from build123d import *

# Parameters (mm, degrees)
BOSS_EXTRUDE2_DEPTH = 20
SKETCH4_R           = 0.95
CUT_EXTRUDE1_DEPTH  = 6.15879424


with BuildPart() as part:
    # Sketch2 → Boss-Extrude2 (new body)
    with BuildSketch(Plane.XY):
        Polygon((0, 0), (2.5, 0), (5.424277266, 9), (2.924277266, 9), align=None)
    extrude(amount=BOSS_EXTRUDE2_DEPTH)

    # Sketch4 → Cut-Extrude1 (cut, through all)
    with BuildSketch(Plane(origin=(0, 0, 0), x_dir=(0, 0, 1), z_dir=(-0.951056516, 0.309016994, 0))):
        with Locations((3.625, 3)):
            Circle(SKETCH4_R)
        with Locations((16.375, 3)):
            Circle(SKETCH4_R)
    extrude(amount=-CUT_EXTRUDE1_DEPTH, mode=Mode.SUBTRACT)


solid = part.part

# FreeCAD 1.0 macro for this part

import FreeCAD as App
import Part
import Sketcher
from FreeCAD import Vector
Q = App.Units.Quantity

doc = App.newDocument("Part")
body = doc.addObject("PartDesign::Body", "Body")

sketch1 = body.newObject("Sketcher::SketchObject", "Sketch")
sketch1.AttachmentSupport = (doc.getObject("XY_Plane"), [""])
sketch1.MapMode = "FlatFace"
sketch1.addGeometry([
    Part.LineSegment(Vector(0, 0, 0), Vector(2.5, 0, 0)),
    Part.LineSegment(Vector(2.5, 0, 0), Vector(5.4, 9, 0)),
    Part.LineSegment(Vector(5.4, 9, 0), Vector(2.9, 9, 0)),
    Part.LineSegment(Vector(2.9, 9, 0), Vector(0, 0, 0)),
], False)
sketch1.addConstraint([
    Sketcher.Constraint("Coincident", 0, 2, 1, 1),
    Sketcher.Constraint("Coincident", 1, 2, 2, 1),
    Sketcher.Constraint("Coincident", 2, 2, 3, 1),
    Sketcher.Constraint("Coincident", 3, 2, 0, 1),
    Sketcher.Constraint("Horizontal", 0),
    Sketcher.Constraint("Horizontal", 2),
    Sketcher.Constraint("Coincident", 3, 2, -1, 1),
    Sketcher.Constraint("Parallel", 1, 3),
    Sketcher.Constraint("Angle", 1, Q("72 deg")),
    Sketcher.Constraint("DistanceX", 0, 1, 0, 2, Q("2.5 mm")),
    Sketcher.Constraint("DistanceY", -1, 1, 1, 2, Q("9 mm")),
])
pad1 = body.newObject("PartDesign::Pad", "Pad")
pad1.Profile = sketch1
pad1.Length = 20

sketch2 = body.newObject("Sketcher::SketchObject", "Sketch001")
sketch2.Placement = App.Placement(Vector(0, 0, 0), App.Rotation(Vector(0, 0, 1), Vector(0.309016994, 0.951056516, 0), Vector(-0.951056516, 0.309016994, 0), "ZXY"))
sketch2.addGeometry([
    Part.Circle(Vector(3.6, 3, 0), Vector(0, 0, 1), 0.9),
    Part.Circle(Vector(16.4, 3, 0), Vector(0, 0, 1), 0.9),
], False)
sketch2.addConstraint([
    Sketcher.Constraint("Equal", 0, 1),
    Sketcher.Constraint("Horizontal", 0, 3, 1, 3),
    Sketcher.Constraint("Diameter", 0, Q("1.9 mm")),
    Sketcher.Constraint("DistanceY", -1, 1, 0, 3, Q("3 mm")),
    Sketcher.Constraint("DistanceX", 0, 3, 1, 3, Q("12.75 mm")),
    Sketcher.Constraint("DistanceX", -1, 1, 0, 3, Q("3.625 mm")),
])
pocket1 = body.newObject("PartDesign::Pocket", "Pocket")
pocket1.Profile = sketch2
pocket1.Type = "ThroughAll"

doc.recompute()
